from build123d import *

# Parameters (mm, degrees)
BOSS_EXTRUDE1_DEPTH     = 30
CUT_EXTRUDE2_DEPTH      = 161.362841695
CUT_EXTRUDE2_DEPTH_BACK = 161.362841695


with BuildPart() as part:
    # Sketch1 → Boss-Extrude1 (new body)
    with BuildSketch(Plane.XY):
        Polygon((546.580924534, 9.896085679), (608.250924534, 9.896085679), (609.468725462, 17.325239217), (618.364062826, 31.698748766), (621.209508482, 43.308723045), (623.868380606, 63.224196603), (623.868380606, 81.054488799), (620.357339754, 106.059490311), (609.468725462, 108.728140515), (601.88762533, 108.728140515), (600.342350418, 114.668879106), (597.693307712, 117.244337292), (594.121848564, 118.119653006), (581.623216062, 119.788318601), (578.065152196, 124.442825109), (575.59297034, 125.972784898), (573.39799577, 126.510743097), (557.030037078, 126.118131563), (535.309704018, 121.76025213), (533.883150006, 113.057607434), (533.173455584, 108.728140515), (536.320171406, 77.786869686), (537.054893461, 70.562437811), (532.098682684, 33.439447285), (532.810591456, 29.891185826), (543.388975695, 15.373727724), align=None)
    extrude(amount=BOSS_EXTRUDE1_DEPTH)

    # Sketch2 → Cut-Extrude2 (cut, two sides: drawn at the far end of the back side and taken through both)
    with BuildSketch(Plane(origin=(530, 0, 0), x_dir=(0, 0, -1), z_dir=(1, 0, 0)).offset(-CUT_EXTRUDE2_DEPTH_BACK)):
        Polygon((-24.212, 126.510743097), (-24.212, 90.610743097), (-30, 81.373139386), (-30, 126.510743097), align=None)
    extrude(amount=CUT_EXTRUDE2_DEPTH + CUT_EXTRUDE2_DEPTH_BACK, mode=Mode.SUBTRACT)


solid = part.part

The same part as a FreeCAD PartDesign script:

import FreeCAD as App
import Part
import Sketcher
from FreeCAD import Vector
Q = App.Units.Quantity


def add_polygon(sketch, points):
    """Adds a closed chain of lines whose ends are joined by coincident constraints."""
    first, n = sketch.GeometryCount, len(points)
    for a, b in zip(points, points[1:] + points[:1]):
        sketch.addGeometry(Part.LineSegment(App.Vector(*a, 0), App.Vector(*b, 0)), False)
    for i in range(n):
        sketch.addConstraint(Sketcher.Constraint("Coincident", first + i, 2, first + (i + 1) % n, 1))

doc = App.newDocument("Part")
body = doc.addObject("PartDesign::Body", "Body")

sketch1 = doc.addObject("Sketcher::SketchObject", "Sketch")
body.addObject(sketch1)
sketch1.AttachmentSupport = (doc.XY_Plane, [""])
sketch1.MapMode = "FlatFace"
add_polygon(sketch1, [(546.580925, 9.896086), (608.250925, 9.896086), (609.468725, 17.325239), (618.364063, 31.698749), (621.209508, 43.308723), (623.868381, 63.224197), (623.868381, 81.054489), (620.35734, 106.05949), (609.468725, 108.728141), (601.887625, 108.728141), (600.34235, 114.668879), (597.693308, 117.244337), (594.121849, 118.119653), (581.623216, 119.788319), (578.065152, 124.442825), (575.59297, 125.972785), (573.397996, 126.510743), (557.030037, 126.118132), (535.309704, 121.760252), (533.88315, 113.057607), (533.173456, 108.728141), (536.320171, 77.78687), (537.054893, 70.562438), (532.098683, 33.439447), (532.810591, 29.891186), (543.388976, 15.373728)])
sketch1.addConstraint([
    Sketcher.Constraint("Horizontal", 0),
    Sketcher.Constraint("Vertical", 5),
    Sketcher.Constraint("Horizontal", 8),
    Sketcher.Constraint("DistanceX", 0, 1, 0, 2, 61.67),
    Sketcher.Constraint("DistanceX", 8, 2, 8, 1, 7.5811),
    Sketcher.Constraint("DistanceY", 5, 2, 6, 2, 25.005002),
    Sketcher.Constraint("DistanceX", 0, 2, 1, 2, 1.217801),
    Sketcher.Constraint("DistanceX", 11, 2, 9, 2, 6.220502),
    Sketcher.Constraint("DistanceX", 13, 2, 9, 2, 22.277198),
    Sketcher.Constraint("DistanceY", 0, 2, 23, 2, 19.9951),
    Sketcher.Constraint("Distance", 3, 11.95358),
    Sketcher.Constraint("Distance", 4, 20.09218),
    Sketcher.Constraint("Distance", 7, 11.21087),
    Sketcher.Constraint("Distance", 11, 3.677159),
    Sketcher.Constraint("Distance", 12, 12.60953),
    Sketcher.Constraint("Distance", 13, 5.85869),
    Sketcher.Constraint("Distance", 14, 2.907311),
    Sketcher.Constraint("Distance", 18, 8.818791),
    Sketcher.Constraint("Distance", 19, 4.387249),
    Sketcher.Constraint("Distance", 20, 31.100869),
    Sketcher.Constraint("DistanceY", 5, 1, 5, 2, 17.830292),
    Sketcher.Constraint("DistanceY", -1, 1, 1, 2, 17.325239),
    Sketcher.Constraint("DistanceY", -1, 1, 2, 2, 31.698749),
    Sketcher.Constraint("DistanceX", -1, 1, 3, 2, 621.209508),
    Sketcher.Constraint("DistanceX", -1, 1, 4, 2, 623.868381),
    Sketcher.Constraint("DistanceY", -1, 1, 5, 2, 81.054489),
    Sketcher.Constraint("DistanceX", -1, 1, 6, 2, 620.35734),
    Sketcher.Constraint("DistanceY", -1, 1, 7, 2, 108.728141),
    Sketcher.Constraint("DistanceX", -1, 1, 9, 2, 600.34235),
    Sketcher.Constraint("DistanceY", -1, 1, 9, 2, 114.668879),
    Sketcher.Constraint("DistanceY", -1, 1, 12, 2, 119.788319),
    Sketcher.Constraint("DistanceX", -1, 1, 14, 2, 575.59297),
    Sketcher.Constraint("DistanceY", -1, 1, 16, 2, 126.118132),
    Sketcher.Constraint("DistanceX", -1, 1, 18, 2, 533.88315),
    Sketcher.Constraint("DistanceY", -1, 1, 19, 2, 108.728141),
    Sketcher.Constraint("DistanceX", -1, 1, 20, 2, 536.320171),
    Sketcher.Constraint("DistanceY", -1, 1, 20, 2, 77.78687),
    Sketcher.Constraint("DistanceX", -1, 1, 23, 2, 532.810591),
    Sketcher.Constraint("DistanceX", 0, 2, 2, 2, 10.113138),
    Sketcher.Constraint("DistanceY", 0, 2, 4, 2, 53.328111),
    Sketcher.Constraint("DistanceY", 9, 2, 10, 2, 2.575458),
    Sketcher.Constraint("DistanceX", 11, 2, 10, 2, 3.571459),
    Sketcher.Constraint("DistanceY", 14, 2, 15, 2, 0.537958),
    Sketcher.Constraint("DistanceX", 15, 2, 12, 2, 8.22522),
    Sketcher.Constraint("DistanceX", 16, 2, 15, 2, 16.367959),
    Sketcher.Constraint("DistanceY", 17, 2, 16, 2, 4.357879),
    Sketcher.Constraint("DistanceY", 21, 2, 20, 2, 7.224432),
    Sketcher.Constraint("DistanceX", 17, 2, 21, 2, 1.745189),
    Sketcher.Constraint("DistanceX", 22, 2, 21, 2, 4.956211),
    Sketcher.Constraint("DistanceY", 22, 2, 21, 2, 37.122991),
    Sketcher.Constraint("DistanceY", 24, 2, 23, 2, 14.517458),
    Sketcher.Constraint("DistanceX", 24, 2, 0, 2, 64.861949),
])
pad1 = doc.addObject("PartDesign::Pad", "Pad")
body.addObject(pad1)
pad1.Profile = sketch1
pad1.Length = 30

sketch2 = doc.addObject("Sketcher::SketchObject", "Sketch001")
body.addObject(sketch2)
sketch2.AttachmentSupport = (doc.YZ_Plane, [""])
sketch2.MapMode = "FlatFace"
sketch2.AttachmentOffset = App.Placement(Vector(0, 0, 530), App.Rotation())
add_polygon(sketch2, [(91, 24), (127, 24), (127, 30), (81, 30)])
sketch2.addConstraint([
    Sketcher.Constraint("Horizontal", 0),
    Sketcher.Constraint("Vertical", 1),
    Sketcher.Constraint("Horizontal", 2),
    Sketcher.Constraint("DistanceX", 0, 1, 0, 2, 35.9),
    Sketcher.Constraint("DistanceY", -1, 1, 1, 2, 30.0),
    Sketcher.Constraint("Angle", 3, Q("-32.07 deg")),
    Sketcher.Constraint("DistanceY", 1, 1, 1, 2, 5.788),
    Sketcher.Constraint("DistanceX", -1, 1, 2, 2, 81.373139),
])
pocket1 = doc.addObject("PartDesign::Pocket", "Pocket")
body.addObject(pocket1)
pocket1.Profile = sketch2
pocket1.Type = "ThroughAll"
pocket1.Midplane = True

doc.recompute()
